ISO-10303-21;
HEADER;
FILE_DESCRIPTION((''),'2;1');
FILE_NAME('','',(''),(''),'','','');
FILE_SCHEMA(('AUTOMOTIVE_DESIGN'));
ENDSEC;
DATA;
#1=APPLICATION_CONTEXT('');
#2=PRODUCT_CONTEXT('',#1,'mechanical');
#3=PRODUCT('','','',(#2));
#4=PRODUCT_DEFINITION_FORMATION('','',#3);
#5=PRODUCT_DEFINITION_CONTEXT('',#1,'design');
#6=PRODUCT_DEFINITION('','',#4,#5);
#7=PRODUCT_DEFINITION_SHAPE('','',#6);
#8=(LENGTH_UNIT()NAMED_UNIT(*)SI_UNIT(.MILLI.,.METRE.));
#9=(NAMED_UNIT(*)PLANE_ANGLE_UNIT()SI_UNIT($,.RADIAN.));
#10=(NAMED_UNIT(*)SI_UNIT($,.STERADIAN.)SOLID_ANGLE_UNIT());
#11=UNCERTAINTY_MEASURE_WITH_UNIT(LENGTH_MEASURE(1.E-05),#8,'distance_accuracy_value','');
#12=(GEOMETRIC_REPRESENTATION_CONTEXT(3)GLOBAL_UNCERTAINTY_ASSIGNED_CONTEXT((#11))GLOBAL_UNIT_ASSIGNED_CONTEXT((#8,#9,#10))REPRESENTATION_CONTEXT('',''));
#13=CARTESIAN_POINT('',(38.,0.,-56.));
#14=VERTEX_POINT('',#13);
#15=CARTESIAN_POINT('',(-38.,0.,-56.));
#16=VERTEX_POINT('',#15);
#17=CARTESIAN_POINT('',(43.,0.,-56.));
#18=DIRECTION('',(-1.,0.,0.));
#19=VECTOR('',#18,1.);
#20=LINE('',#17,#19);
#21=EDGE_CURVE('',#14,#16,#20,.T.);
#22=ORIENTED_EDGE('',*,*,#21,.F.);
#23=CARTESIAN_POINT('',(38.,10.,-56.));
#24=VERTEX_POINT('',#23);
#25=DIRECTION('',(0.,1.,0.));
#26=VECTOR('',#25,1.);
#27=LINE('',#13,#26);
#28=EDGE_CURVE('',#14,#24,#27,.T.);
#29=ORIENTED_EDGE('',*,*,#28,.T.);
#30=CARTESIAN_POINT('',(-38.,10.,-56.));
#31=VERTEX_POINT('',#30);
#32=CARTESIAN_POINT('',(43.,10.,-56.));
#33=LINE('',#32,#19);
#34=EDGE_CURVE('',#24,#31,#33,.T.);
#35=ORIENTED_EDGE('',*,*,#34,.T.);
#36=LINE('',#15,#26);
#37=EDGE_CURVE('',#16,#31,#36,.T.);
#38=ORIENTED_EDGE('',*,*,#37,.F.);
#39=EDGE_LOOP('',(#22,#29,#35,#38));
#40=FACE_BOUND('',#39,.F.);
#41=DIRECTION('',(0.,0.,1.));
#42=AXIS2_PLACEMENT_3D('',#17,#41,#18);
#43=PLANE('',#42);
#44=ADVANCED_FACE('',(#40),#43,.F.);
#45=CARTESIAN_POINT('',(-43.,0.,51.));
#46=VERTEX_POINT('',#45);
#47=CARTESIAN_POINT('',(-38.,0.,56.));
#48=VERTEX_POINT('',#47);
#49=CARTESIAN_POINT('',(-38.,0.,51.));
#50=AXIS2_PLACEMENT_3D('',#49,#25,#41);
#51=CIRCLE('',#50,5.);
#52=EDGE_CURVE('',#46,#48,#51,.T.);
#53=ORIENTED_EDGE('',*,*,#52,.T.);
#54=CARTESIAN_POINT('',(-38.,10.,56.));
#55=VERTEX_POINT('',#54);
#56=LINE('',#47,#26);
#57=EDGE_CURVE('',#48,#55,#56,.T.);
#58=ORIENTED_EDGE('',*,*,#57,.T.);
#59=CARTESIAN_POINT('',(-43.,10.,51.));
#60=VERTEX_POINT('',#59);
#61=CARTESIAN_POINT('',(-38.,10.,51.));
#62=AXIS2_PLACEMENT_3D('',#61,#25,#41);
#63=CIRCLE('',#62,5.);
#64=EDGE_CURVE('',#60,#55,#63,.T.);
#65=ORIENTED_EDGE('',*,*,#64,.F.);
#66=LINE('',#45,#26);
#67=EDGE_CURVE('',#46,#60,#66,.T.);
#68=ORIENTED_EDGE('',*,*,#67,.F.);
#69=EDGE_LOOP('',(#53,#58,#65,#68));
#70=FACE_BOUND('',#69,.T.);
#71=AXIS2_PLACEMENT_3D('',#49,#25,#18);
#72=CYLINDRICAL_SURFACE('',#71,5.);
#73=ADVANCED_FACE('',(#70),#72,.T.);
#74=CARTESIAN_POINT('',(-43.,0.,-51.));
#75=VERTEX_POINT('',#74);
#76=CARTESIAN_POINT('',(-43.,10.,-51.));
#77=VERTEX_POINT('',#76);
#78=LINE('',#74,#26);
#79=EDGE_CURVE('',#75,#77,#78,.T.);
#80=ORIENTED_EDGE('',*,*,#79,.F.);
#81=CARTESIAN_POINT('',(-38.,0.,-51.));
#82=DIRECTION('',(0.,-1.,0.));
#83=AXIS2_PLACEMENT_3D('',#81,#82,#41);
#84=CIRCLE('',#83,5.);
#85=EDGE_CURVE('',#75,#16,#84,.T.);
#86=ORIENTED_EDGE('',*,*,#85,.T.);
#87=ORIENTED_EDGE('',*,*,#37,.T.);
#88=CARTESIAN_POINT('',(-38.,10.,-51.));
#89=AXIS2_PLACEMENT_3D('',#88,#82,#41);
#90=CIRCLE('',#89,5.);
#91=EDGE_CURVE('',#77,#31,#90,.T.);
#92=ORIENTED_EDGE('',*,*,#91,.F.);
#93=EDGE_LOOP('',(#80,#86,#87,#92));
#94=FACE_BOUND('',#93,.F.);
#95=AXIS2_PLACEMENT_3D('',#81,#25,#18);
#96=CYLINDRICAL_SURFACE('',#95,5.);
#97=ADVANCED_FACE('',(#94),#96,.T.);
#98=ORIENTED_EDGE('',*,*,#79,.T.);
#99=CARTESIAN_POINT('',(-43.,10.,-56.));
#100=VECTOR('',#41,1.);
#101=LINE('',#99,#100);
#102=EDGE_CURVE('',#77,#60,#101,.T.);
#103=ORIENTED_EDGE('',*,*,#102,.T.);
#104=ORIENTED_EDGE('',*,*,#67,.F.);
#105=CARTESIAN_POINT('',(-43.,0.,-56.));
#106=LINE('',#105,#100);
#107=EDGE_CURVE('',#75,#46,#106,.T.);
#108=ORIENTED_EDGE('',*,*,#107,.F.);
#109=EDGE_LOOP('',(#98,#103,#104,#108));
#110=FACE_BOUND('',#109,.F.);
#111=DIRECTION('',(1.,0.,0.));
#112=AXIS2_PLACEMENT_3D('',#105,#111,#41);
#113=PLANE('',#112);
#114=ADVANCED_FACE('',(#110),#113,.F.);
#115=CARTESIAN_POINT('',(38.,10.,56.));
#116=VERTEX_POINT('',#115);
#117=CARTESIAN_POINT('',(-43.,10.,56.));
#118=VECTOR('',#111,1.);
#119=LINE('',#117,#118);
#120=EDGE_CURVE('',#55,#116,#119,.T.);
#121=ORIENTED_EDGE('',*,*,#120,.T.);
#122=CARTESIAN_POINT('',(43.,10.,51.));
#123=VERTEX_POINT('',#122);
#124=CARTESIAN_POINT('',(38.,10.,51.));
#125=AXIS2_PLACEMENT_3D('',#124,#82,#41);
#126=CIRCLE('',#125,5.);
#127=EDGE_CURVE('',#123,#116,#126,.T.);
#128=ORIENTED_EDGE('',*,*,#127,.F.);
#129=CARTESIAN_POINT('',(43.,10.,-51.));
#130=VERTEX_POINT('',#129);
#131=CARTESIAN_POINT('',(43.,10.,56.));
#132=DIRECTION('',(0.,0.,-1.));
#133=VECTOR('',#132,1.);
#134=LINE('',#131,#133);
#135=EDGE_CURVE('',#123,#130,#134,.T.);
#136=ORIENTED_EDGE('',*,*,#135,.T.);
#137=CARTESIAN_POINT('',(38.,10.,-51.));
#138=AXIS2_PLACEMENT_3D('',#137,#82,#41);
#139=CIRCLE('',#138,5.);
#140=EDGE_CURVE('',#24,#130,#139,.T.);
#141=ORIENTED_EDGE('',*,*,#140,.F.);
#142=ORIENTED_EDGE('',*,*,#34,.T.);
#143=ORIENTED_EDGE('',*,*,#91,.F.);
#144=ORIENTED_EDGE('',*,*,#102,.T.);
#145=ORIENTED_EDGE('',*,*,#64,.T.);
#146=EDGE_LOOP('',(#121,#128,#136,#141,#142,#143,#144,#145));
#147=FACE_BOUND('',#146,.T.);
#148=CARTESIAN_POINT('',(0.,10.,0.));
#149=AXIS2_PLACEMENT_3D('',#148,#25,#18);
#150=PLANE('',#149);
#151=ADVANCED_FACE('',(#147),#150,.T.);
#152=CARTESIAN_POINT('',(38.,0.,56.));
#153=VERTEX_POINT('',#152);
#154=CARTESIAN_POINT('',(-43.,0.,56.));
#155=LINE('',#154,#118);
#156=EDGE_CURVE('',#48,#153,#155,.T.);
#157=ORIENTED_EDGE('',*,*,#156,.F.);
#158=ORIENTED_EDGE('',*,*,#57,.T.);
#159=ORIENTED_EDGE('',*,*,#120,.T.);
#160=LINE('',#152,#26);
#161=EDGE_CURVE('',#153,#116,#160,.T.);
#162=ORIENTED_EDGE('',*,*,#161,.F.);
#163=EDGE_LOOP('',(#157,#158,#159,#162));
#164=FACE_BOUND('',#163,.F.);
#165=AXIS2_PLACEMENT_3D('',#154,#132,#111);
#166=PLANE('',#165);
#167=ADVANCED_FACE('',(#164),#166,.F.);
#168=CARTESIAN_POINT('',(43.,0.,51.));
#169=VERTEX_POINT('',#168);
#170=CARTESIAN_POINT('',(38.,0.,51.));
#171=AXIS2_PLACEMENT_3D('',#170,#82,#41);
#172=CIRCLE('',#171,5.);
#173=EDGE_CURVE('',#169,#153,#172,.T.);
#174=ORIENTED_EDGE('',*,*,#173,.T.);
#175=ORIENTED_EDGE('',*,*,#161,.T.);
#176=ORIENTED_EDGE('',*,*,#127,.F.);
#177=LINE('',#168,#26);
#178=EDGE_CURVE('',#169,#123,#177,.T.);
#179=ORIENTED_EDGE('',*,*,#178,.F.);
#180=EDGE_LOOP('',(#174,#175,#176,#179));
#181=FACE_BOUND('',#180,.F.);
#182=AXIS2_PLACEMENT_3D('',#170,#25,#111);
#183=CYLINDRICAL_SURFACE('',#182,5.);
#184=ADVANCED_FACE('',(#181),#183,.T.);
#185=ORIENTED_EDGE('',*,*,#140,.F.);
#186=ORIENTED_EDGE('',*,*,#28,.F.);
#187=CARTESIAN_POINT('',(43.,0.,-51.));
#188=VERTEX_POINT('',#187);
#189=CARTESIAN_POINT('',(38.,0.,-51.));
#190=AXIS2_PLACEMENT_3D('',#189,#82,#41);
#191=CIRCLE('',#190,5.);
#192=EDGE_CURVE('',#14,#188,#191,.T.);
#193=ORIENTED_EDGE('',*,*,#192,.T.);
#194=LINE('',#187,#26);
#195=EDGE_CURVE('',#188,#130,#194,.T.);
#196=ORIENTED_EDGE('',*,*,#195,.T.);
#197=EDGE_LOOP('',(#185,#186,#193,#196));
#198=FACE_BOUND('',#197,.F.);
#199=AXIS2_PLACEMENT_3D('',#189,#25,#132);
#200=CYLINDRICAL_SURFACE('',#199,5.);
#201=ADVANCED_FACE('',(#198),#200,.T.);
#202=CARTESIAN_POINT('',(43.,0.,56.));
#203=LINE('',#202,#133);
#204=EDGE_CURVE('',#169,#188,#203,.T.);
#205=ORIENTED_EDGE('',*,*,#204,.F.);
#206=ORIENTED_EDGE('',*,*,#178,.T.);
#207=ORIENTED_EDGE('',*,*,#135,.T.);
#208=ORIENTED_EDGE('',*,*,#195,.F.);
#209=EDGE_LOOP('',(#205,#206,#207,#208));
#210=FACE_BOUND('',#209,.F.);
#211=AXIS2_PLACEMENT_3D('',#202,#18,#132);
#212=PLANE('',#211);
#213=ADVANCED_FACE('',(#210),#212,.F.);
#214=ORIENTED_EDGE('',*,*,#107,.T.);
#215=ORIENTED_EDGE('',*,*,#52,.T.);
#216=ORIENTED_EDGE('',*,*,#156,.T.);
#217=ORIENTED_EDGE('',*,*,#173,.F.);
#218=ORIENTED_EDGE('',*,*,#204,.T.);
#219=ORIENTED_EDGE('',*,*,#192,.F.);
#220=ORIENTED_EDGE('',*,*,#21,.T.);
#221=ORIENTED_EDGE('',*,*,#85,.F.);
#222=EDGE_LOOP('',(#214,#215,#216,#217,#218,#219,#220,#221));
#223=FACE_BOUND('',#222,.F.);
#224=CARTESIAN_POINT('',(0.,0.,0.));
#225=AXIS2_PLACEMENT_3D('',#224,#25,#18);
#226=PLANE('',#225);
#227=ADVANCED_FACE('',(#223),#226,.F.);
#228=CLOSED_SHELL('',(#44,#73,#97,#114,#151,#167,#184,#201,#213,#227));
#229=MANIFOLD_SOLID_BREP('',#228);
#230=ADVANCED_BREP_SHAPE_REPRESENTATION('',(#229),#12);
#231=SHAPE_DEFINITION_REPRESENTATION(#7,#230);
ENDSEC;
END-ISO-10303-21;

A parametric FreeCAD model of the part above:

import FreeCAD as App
import Part
import Sketcher
Q = App.Units.Quantity


def edges_at(feature, points):
    """Names of the edges that pass closest to the given points."""
    edges = feature.Shape.Edges
    near = lambda p: min(range(len(edges)), key=lambda i: edges[i].distToShape(Part.Vertex(*p))[0])
    return sorted({f"Edge{near(p) + 1}" for p in points})

doc = App.newDocument("Part")
body = doc.addObject("PartDesign::Body", "Body")

# Sketch on XZ plane
sketch1 = body.newObject("Sketcher::SketchObject", "Sketch")
sketch1.AttachmentSupport = (doc.getObject("XZ_Plane"), [""])
sketch1.MapMode = "FlatFace"
sketch1.addGeometry(Part.LineSegment(App.Vector(-43, -56, 0), App.Vector(-43, 56, 0)), False)
sketch1.addGeometry(Part.LineSegment(App.Vector(-43, 56, 0), App.Vector(43, 56, 0)), False)
sketch1.addGeometry(Part.LineSegment(App.Vector(43, 56, 0), App.Vector(43, -56, 0)), False)
sketch1.addGeometry(Part.LineSegment(App.Vector(43, -56, 0), App.Vector(-43, -56, 0)), False)
sketch1.addConstraint(Sketcher.Constraint("Coincident", 0, 2, 1, 1))
sketch1.addConstraint(Sketcher.Constraint("Coincident", 1, 2, 2, 1))
sketch1.addConstraint(Sketcher.Constraint("Coincident", 2, 2, 3, 1))
sketch1.addConstraint(Sketcher.Constraint("Coincident", 3, 2, 0, 1))
sketch1.addConstraint(Sketcher.Constraint("Vertical", 0))
sketch1.addConstraint(Sketcher.Constraint("Horizontal", 1))
sketch1.addConstraint(Sketcher.Constraint("Vertical", 2))
sketch1.addConstraint(Sketcher.Constraint("Horizontal", 3))
sketch1.addConstraint(Sketcher.Constraint("Symmetric", 0, 2, 2, 2, -1, 1))
sketch1.addConstraint(Sketcher.Constraint("DistanceX", 1, 1, 1, 2, Q("86 mm")))
sketch1.addConstraint(Sketcher.Constraint("DistanceY", 0, 1, 0, 2, Q("112 mm")))
pad1 = body.newObject("PartDesign::Pad", "Pad")
pad1.Profile = sketch1
pad1.Length = 10
pad1.Reversed = True
doc.recompute()

fillet = body.newObject("PartDesign::Fillet", "Fillet")
fillet.Base = (pad1, edges_at(pad1, [
    (-43, 5, 56),
    (43, 5, 56),
    (43, 5, -56),
    (-43, 5, -56),
]))
fillet.Radius = 5

doc.recompute()
